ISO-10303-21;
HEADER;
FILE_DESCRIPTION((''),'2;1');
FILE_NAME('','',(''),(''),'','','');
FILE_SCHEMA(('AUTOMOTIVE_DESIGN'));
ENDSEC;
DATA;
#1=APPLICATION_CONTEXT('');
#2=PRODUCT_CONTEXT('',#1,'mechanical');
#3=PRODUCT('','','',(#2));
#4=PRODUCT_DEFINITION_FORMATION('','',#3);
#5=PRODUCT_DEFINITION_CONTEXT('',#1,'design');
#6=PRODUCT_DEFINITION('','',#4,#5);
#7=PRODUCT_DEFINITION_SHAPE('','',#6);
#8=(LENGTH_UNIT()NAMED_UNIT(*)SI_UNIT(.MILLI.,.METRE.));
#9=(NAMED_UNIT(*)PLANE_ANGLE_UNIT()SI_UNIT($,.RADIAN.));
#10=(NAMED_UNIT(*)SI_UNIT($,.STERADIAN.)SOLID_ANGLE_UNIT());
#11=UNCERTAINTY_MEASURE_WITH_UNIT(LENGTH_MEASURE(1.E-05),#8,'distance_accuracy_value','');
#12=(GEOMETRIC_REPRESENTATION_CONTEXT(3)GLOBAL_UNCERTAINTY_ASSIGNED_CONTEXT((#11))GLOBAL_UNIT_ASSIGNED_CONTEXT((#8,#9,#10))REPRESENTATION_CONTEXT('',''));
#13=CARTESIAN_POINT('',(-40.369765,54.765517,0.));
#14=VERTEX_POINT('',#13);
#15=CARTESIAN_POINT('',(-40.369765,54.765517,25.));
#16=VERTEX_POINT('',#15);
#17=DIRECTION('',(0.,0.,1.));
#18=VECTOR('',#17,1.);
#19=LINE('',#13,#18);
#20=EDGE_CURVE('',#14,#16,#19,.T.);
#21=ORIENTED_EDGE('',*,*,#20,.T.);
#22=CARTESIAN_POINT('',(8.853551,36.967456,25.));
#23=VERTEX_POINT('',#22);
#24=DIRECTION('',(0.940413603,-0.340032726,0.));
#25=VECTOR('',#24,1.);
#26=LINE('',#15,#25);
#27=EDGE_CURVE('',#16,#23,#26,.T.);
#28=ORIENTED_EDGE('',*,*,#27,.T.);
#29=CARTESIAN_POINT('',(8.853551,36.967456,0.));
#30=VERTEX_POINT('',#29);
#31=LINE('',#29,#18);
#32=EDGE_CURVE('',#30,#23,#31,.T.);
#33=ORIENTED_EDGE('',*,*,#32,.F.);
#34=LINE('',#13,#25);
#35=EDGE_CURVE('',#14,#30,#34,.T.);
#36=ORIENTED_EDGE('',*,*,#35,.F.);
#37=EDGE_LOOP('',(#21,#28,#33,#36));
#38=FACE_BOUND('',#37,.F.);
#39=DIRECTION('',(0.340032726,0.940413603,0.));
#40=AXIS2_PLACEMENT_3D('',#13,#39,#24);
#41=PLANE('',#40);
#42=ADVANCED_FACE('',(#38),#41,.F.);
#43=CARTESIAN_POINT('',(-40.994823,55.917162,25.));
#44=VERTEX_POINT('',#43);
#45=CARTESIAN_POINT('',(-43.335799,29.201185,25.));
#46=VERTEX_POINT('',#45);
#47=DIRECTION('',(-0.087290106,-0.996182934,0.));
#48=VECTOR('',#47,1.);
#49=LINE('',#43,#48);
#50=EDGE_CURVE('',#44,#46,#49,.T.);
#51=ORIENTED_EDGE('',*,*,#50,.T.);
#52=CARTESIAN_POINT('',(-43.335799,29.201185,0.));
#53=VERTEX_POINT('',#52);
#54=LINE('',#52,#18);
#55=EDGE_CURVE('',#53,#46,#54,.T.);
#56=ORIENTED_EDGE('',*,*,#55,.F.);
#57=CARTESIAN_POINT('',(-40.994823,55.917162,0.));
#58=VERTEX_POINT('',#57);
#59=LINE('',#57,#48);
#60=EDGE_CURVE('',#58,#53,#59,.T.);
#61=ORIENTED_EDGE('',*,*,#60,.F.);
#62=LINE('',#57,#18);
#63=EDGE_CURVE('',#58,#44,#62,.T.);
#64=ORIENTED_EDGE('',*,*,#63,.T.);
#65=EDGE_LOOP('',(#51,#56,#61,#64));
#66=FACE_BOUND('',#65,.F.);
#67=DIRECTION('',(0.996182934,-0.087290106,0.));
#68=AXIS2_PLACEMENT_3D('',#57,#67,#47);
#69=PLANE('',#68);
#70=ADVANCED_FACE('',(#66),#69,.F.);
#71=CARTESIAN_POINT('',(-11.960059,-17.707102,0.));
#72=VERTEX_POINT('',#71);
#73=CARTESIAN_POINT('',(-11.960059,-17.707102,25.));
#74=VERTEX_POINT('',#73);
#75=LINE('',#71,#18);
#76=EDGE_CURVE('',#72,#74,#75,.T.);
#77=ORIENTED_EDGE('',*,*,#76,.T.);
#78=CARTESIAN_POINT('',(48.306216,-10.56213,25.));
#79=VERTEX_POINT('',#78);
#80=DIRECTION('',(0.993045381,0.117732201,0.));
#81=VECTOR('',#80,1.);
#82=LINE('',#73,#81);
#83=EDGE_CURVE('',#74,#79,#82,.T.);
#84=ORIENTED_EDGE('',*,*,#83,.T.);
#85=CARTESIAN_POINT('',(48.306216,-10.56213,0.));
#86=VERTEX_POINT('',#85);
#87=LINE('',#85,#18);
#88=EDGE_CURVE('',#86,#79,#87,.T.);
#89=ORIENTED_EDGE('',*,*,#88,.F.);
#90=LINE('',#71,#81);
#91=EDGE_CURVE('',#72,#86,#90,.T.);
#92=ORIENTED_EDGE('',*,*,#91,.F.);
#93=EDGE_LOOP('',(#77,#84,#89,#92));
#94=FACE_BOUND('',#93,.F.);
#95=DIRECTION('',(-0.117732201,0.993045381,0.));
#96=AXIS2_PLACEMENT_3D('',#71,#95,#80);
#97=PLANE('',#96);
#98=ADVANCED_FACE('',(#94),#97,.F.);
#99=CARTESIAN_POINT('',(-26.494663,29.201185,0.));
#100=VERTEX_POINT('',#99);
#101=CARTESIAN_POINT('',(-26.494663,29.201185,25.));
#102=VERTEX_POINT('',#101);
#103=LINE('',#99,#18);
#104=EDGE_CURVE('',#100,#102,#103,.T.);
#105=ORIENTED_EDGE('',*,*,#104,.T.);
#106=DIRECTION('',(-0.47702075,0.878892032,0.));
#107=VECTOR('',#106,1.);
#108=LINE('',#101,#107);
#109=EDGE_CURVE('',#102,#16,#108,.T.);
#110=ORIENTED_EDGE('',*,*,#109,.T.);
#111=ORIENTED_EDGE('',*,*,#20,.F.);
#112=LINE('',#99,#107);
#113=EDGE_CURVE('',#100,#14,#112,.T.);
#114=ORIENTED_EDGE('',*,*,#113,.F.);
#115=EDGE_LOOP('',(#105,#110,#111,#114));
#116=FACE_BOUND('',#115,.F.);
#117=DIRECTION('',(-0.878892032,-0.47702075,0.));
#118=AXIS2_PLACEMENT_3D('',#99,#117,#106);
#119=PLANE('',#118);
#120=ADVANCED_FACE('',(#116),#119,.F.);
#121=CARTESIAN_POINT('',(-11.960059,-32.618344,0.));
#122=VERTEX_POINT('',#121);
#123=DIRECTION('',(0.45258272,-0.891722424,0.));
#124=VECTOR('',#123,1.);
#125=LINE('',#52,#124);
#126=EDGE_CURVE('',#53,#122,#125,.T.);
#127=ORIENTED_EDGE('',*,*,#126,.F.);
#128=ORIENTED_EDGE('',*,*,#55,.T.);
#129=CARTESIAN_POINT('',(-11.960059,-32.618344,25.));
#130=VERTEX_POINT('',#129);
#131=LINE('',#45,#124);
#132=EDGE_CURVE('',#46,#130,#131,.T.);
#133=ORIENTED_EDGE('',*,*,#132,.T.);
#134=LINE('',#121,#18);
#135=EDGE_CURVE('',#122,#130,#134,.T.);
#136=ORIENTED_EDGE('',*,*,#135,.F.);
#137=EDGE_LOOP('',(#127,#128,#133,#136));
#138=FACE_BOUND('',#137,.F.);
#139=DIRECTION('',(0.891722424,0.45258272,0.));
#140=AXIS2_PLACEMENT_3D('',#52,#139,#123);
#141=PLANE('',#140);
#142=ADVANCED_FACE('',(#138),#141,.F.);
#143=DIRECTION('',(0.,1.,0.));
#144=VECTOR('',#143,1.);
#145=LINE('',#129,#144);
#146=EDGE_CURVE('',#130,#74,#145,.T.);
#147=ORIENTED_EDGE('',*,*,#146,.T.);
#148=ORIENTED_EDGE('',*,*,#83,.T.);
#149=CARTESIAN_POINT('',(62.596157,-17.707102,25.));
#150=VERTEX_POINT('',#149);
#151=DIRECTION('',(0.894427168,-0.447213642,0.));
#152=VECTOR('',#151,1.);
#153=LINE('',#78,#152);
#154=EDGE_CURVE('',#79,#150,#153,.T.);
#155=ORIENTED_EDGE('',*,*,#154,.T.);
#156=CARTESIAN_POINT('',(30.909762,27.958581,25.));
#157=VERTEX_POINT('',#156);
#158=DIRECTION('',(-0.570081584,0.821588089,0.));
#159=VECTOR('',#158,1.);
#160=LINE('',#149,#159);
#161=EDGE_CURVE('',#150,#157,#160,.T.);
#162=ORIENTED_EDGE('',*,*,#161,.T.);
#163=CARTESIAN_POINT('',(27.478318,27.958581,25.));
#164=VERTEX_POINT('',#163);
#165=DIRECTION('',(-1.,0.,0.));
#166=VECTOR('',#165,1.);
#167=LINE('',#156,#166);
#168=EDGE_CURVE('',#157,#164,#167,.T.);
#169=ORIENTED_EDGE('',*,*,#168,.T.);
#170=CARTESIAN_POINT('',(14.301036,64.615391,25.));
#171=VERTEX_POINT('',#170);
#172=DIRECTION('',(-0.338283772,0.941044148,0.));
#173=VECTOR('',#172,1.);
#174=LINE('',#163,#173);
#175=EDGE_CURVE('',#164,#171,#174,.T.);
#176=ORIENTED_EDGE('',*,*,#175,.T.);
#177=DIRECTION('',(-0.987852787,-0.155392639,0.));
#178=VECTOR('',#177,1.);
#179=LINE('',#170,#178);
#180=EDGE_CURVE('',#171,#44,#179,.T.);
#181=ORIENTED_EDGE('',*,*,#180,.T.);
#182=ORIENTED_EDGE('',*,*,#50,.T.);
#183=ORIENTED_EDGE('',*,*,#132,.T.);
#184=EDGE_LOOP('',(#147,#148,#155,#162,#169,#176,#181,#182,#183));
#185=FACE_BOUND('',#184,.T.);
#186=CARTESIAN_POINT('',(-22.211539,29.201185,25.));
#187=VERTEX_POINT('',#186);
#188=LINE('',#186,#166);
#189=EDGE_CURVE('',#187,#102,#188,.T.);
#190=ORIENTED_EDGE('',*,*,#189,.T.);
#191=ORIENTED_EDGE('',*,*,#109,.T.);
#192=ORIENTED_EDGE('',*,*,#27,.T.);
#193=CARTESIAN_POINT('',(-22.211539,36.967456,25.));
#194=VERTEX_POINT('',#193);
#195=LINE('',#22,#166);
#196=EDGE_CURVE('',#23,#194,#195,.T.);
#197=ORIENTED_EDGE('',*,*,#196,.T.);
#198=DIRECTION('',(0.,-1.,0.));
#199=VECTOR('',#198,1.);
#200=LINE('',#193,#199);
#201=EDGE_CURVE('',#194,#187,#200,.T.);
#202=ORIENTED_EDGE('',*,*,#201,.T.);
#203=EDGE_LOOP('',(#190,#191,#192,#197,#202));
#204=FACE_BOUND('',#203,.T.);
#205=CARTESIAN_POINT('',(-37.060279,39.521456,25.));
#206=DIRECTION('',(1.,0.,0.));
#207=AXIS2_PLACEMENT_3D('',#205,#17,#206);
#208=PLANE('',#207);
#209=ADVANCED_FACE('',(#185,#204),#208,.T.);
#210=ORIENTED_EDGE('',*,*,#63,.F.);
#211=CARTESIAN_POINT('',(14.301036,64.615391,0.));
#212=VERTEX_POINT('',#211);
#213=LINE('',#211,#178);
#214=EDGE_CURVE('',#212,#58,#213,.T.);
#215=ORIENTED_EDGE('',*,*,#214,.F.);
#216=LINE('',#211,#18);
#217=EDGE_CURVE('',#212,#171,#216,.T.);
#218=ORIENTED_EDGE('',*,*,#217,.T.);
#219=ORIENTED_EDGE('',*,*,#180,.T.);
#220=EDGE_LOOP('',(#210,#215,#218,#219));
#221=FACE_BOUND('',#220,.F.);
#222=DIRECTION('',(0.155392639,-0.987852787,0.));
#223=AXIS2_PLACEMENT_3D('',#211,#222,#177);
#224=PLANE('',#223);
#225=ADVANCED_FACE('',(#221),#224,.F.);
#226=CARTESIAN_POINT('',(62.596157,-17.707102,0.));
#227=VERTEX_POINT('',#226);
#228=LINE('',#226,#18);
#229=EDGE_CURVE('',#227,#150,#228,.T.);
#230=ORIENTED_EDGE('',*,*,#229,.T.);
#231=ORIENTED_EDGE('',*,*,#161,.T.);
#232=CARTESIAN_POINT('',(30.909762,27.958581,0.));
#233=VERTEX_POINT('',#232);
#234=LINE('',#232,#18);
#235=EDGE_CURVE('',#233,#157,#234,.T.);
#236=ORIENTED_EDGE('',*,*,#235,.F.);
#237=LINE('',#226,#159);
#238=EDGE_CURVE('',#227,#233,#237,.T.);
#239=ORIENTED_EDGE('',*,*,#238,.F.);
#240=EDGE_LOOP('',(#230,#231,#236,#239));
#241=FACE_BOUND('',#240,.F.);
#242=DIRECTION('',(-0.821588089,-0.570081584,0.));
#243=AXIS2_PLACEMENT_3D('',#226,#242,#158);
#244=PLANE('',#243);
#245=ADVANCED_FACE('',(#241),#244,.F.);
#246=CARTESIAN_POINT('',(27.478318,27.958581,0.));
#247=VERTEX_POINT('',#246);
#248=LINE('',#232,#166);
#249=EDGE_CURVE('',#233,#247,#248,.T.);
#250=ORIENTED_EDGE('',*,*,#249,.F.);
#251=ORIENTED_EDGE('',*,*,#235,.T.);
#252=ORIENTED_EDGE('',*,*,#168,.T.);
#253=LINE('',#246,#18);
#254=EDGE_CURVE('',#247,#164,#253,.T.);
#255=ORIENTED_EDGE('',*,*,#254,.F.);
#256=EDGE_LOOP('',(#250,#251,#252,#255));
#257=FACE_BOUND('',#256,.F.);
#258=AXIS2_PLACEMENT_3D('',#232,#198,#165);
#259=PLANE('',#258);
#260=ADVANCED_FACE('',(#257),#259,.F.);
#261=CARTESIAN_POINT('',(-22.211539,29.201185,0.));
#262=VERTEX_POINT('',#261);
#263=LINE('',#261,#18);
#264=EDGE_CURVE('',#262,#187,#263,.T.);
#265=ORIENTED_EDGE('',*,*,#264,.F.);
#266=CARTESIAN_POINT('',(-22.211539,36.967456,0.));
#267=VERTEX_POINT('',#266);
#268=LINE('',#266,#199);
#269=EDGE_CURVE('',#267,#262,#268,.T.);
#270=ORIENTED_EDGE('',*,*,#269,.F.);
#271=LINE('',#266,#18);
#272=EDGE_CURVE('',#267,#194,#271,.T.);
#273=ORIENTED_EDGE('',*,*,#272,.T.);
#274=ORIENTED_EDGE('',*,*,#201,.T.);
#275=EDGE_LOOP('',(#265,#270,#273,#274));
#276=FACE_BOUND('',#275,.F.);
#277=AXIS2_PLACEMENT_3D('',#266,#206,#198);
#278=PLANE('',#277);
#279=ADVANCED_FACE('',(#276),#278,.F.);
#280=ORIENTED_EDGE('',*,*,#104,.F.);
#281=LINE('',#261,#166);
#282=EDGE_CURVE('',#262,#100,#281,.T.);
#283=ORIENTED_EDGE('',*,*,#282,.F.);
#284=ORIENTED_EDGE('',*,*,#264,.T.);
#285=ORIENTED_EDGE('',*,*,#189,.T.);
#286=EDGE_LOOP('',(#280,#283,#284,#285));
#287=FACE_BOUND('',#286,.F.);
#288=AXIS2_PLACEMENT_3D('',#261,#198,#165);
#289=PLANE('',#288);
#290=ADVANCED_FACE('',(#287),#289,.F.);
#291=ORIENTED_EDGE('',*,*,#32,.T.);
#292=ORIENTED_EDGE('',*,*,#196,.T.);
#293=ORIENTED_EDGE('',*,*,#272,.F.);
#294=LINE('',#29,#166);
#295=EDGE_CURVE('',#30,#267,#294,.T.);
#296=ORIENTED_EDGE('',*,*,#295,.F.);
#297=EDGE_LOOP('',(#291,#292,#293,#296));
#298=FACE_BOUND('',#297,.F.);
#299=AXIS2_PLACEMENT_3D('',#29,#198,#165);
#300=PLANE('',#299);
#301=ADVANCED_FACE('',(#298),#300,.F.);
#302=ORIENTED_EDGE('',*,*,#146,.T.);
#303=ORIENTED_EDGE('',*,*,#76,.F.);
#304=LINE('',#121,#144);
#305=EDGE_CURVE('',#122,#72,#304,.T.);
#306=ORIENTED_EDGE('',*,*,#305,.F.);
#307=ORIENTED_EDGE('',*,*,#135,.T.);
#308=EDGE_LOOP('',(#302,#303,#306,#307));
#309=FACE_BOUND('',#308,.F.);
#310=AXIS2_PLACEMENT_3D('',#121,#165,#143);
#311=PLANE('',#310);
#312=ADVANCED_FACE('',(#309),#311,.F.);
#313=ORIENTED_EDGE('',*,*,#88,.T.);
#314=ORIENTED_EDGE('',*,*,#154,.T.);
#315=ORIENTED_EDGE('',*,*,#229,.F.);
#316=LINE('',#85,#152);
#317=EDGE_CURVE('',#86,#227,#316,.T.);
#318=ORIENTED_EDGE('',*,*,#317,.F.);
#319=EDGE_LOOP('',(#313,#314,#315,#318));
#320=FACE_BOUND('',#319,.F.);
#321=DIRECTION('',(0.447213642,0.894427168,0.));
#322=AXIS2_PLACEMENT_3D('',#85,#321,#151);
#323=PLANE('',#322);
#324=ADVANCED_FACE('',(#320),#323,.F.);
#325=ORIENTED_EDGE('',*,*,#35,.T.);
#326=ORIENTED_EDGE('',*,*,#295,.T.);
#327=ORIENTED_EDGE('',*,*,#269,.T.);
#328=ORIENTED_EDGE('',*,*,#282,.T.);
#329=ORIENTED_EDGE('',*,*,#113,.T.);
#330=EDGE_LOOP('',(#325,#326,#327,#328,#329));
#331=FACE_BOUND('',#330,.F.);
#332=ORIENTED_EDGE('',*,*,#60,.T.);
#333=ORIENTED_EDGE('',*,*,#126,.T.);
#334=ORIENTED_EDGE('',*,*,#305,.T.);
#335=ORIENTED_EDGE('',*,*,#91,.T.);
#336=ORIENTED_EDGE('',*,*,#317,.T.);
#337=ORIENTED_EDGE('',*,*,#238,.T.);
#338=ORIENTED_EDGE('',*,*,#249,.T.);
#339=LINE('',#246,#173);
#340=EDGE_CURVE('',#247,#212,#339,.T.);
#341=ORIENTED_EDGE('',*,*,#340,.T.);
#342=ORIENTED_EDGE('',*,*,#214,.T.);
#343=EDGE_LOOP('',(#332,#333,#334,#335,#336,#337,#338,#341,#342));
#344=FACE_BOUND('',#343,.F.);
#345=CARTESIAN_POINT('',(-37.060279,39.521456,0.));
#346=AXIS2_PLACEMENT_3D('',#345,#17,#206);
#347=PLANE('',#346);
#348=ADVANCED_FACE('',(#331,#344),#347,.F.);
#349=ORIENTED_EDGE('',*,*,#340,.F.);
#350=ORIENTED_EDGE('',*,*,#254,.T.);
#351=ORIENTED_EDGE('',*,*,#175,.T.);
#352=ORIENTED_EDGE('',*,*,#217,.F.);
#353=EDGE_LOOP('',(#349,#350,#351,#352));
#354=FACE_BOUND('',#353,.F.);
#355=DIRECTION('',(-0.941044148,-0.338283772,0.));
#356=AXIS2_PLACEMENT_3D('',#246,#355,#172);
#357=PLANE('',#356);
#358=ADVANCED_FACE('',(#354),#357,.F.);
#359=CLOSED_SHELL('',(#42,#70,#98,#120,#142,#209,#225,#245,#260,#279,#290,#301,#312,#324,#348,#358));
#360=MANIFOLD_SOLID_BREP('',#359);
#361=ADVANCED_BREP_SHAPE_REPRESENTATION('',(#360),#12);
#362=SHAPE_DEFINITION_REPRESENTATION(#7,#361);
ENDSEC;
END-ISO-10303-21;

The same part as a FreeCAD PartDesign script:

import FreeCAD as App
import Part
import Sketcher
from FreeCAD import Vector
Q = App.Units.Quantity

doc = App.newDocument("Part")
body = doc.addObject("PartDesign::Body", "Body")

sketch1 = body.newObject("Sketcher::SketchObject", "Sketch")
sketch1.AttachmentSupport = (doc.getObject("XY_Plane"), [""])
sketch1.MapMode = "FlatFace"
sketch1.addGeometry([
    Part.LineSegment(Vector(27.5, 28, 0), Vector(14.3, 64.6, 0)),
    Part.LineSegment(Vector(14.3, 64.6, 0), Vector(-41, 55.9, 0)),
    Part.LineSegment(Vector(-41, 55.9, 0), Vector(-43.3, 29.2, 0)),
    Part.LineSegment(Vector(-43.3, 29.2, 0), Vector(-12, -32.6, 0)),
    Part.LineSegment(Vector(-12, -32.6, 0), Vector(-12, -17.7, 0)),
    Part.LineSegment(Vector(-12, -17.7, 0), Vector(48.3, -10.6, 0)),
    Part.LineSegment(Vector(48.3, -10.6, 0), Vector(62.6, -17.7, 0)),
    Part.LineSegment(Vector(62.6, -17.7, 0), Vector(30.9, 28, 0)),
    Part.LineSegment(Vector(30.9, 28, 0), Vector(27.5, 28, 0)),
    Part.LineSegment(Vector(-40.4, 54.8, 0), Vector(8.9, 37, 0)),
    Part.LineSegment(Vector(8.9, 37, 0), Vector(-22.2, 37, 0)),
    Part.LineSegment(Vector(-22.2, 37, 0), Vector(-22.2, 29.2, 0)),
    Part.LineSegment(Vector(-22.2, 29.2, 0), Vector(-26.5, 29.2, 0)),
    Part.LineSegment(Vector(-26.5, 29.2, 0), Vector(-40.4, 54.8, 0)),
], False)
sketch1.addConstraint([
    Sketcher.Constraint("Coincident", 0, 2, 1, 1),
    Sketcher.Constraint("Coincident", 1, 2, 2, 1),
    Sketcher.Constraint("Coincident", 2, 2, 3, 1),
    Sketcher.Constraint("Coincident", 3, 2, 4, 1),
    Sketcher.Constraint("Coincident", 4, 2, 5, 1),
    Sketcher.Constraint("Coincident", 5, 2, 6, 1),
    Sketcher.Constraint("Coincident", 6, 2, 7, 1),
    Sketcher.Constraint("Coincident", 7, 2, 8, 1),
    Sketcher.Constraint("Coincident", 8, 2, 0, 1),
    Sketcher.Constraint("Coincident", 9, 2, 10, 1),
    Sketcher.Constraint("Coincident", 10, 2, 11, 1),
    Sketcher.Constraint("Coincident", 11, 2, 12, 1),
    Sketcher.Constraint("Coincident", 12, 2, 13, 1),
    Sketcher.Constraint("Coincident", 13, 2, 9, 1),
    Sketcher.Constraint("Vertical", 4),
    Sketcher.Constraint("Horizontal", 8),
    Sketcher.Constraint("Horizontal", 10),
    Sketcher.Constraint("Vertical", 11),
    Sketcher.Constraint("Horizontal", 12),
    Sketcher.Constraint("Horizontal", 4, 2, 6, 2),
    Sketcher.Constraint("Horizontal", 2, 2, 11, 2),
    Sketcher.Constraint("Distance", 13, Q("29.086999 mm")),
    Sketcher.Constraint("Distance", 9, Q("52.342199 mm")),
    Sketcher.Constraint("DistanceX", 10, 2, 10, 1, Q("31.06509 mm")),
    Sketcher.Constraint("DistanceY", 4, 1, 4, 2, Q("14.911242 mm")),
    Sketcher.Constraint("DistanceY", 11, 2, 11, 1, Q("7.766271 mm")),
    Sketcher.Constraint("DistanceX", 2, 2, -1, 1, Q("43.335799 mm")),
    Sketcher.Constraint("Distance", 1, Q("55.97581 mm")),
    Sketcher.Constraint("Distance", 3, Q("69.325978 mm")),
    Sketcher.Constraint("Distance", 5, Q("60.688339 mm")),
    Sketcher.Constraint("Distance", 6, Q("15.976641 mm")),
    Sketcher.Constraint("Distance", 7, Q("55.582212 mm")),
    Sketcher.Constraint("DistanceX", 8, 2, 8, 1, Q("3.431443 mm")),
    Sketcher.Constraint("DistanceX", 12, 2, 12, 1, Q("4.283124 mm")),
    Sketcher.Constraint("DistanceY", -1, 1, 0, 2, Q("64.615391 mm")),
    Sketcher.Constraint("DistanceX", 3, 2, -1, 1, Q("11.960059 mm")),
    Sketcher.Constraint("DistanceY", 5, 2, -1, 1, Q("10.56213 mm")),
    Sketcher.Constraint("DistanceX", -1, 1, 7, 2, Q("30.909762 mm")),
    Sketcher.Constraint("DistanceY", -1, 1, 7, 2, Q("27.958581 mm")),
    Sketcher.Constraint("DistanceX", -1, 1, 9, 2, Q("8.853551 mm")),
    Sketcher.Constraint("DistanceX", 1, 2, 0, 2, Q("55.295859 mm")),
    Sketcher.Constraint("DistanceX", 0, 2, 5, 2, Q("34.005179 mm")),
])
pad1 = body.newObject("PartDesign::Pad", "Pad")
pad1.Profile = sketch1
pad1.Length = 25

doc.recompute()
